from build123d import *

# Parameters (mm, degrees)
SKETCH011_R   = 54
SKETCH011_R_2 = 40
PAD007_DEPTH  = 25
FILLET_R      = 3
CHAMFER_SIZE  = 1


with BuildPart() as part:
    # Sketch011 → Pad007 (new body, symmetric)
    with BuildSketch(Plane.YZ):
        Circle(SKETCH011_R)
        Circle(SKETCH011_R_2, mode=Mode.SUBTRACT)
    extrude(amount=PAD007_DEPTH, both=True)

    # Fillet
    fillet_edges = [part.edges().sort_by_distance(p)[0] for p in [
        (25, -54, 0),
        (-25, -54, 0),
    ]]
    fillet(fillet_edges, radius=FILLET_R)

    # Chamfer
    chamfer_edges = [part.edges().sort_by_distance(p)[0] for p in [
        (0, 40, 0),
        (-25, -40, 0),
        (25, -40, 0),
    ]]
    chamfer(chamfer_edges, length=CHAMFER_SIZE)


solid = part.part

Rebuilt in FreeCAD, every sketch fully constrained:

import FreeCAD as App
import Part
import Sketcher

V = App.Vector
Q = App.Units.Quantity


def edges_at(feature, points):
    """Names of the edges that pass closest to the given points."""
    edges = feature.Shape.Edges
    near = lambda p: min(range(len(edges)), key=lambda i: edges[i].distToShape(Part.Vertex(*p))[0])
    return sorted({f"Edge{near(p) + 1}" for p in points})

doc = App.newDocument("Part")
body = doc.addObject("PartDesign::Body", "Body")

sketch1 = body.newObject("Sketcher::SketchObject", "Sketch")
sketch1.AttachmentSupport = (doc.getObject("YZ_Plane"), [""])
sketch1.MapMode = "FlatFace"
sketch1.addGeometry(Part.Circle(V(0, 0, 0), V(0, 0, 1), 54), False)
sketch1.addGeometry(Part.Circle(V(0, 0, 0), V(0, 0, 1), 40), False)
sketch1.addConstraint(Sketcher.Constraint("Coincident", 0, 3, -1, 1))
sketch1.addConstraint(Sketcher.Constraint("Coincident", 1, 3, -1, 1))
sketch1.addConstraint(Sketcher.Constraint("Diameter", 0, Q("108 mm")))
sketch1.addConstraint(Sketcher.Constraint("Diameter", 1, Q("80 mm")))
pad1 = body.newObject("PartDesign::Pad", "Pad")
pad1.Profile = sketch1
pad1.Length = 50
pad1.Midplane = True
doc.recompute()

fillet = body.newObject("PartDesign::Fillet", "Fillet")
fillet.Base = (pad1, edges_at(pad1, [(25, -54, 0), (-25, -54, 0)]))
fillet.Radius = 3
doc.recompute()

chamfer = body.newObject("PartDesign::Chamfer", "Chamfer")
chamfer.Base = (fillet, edges_at(fillet, [(0, 40, 0), (-25, -40, 0), (25, -40, 0)]))
chamfer.Size = 1

doc.recompute()
